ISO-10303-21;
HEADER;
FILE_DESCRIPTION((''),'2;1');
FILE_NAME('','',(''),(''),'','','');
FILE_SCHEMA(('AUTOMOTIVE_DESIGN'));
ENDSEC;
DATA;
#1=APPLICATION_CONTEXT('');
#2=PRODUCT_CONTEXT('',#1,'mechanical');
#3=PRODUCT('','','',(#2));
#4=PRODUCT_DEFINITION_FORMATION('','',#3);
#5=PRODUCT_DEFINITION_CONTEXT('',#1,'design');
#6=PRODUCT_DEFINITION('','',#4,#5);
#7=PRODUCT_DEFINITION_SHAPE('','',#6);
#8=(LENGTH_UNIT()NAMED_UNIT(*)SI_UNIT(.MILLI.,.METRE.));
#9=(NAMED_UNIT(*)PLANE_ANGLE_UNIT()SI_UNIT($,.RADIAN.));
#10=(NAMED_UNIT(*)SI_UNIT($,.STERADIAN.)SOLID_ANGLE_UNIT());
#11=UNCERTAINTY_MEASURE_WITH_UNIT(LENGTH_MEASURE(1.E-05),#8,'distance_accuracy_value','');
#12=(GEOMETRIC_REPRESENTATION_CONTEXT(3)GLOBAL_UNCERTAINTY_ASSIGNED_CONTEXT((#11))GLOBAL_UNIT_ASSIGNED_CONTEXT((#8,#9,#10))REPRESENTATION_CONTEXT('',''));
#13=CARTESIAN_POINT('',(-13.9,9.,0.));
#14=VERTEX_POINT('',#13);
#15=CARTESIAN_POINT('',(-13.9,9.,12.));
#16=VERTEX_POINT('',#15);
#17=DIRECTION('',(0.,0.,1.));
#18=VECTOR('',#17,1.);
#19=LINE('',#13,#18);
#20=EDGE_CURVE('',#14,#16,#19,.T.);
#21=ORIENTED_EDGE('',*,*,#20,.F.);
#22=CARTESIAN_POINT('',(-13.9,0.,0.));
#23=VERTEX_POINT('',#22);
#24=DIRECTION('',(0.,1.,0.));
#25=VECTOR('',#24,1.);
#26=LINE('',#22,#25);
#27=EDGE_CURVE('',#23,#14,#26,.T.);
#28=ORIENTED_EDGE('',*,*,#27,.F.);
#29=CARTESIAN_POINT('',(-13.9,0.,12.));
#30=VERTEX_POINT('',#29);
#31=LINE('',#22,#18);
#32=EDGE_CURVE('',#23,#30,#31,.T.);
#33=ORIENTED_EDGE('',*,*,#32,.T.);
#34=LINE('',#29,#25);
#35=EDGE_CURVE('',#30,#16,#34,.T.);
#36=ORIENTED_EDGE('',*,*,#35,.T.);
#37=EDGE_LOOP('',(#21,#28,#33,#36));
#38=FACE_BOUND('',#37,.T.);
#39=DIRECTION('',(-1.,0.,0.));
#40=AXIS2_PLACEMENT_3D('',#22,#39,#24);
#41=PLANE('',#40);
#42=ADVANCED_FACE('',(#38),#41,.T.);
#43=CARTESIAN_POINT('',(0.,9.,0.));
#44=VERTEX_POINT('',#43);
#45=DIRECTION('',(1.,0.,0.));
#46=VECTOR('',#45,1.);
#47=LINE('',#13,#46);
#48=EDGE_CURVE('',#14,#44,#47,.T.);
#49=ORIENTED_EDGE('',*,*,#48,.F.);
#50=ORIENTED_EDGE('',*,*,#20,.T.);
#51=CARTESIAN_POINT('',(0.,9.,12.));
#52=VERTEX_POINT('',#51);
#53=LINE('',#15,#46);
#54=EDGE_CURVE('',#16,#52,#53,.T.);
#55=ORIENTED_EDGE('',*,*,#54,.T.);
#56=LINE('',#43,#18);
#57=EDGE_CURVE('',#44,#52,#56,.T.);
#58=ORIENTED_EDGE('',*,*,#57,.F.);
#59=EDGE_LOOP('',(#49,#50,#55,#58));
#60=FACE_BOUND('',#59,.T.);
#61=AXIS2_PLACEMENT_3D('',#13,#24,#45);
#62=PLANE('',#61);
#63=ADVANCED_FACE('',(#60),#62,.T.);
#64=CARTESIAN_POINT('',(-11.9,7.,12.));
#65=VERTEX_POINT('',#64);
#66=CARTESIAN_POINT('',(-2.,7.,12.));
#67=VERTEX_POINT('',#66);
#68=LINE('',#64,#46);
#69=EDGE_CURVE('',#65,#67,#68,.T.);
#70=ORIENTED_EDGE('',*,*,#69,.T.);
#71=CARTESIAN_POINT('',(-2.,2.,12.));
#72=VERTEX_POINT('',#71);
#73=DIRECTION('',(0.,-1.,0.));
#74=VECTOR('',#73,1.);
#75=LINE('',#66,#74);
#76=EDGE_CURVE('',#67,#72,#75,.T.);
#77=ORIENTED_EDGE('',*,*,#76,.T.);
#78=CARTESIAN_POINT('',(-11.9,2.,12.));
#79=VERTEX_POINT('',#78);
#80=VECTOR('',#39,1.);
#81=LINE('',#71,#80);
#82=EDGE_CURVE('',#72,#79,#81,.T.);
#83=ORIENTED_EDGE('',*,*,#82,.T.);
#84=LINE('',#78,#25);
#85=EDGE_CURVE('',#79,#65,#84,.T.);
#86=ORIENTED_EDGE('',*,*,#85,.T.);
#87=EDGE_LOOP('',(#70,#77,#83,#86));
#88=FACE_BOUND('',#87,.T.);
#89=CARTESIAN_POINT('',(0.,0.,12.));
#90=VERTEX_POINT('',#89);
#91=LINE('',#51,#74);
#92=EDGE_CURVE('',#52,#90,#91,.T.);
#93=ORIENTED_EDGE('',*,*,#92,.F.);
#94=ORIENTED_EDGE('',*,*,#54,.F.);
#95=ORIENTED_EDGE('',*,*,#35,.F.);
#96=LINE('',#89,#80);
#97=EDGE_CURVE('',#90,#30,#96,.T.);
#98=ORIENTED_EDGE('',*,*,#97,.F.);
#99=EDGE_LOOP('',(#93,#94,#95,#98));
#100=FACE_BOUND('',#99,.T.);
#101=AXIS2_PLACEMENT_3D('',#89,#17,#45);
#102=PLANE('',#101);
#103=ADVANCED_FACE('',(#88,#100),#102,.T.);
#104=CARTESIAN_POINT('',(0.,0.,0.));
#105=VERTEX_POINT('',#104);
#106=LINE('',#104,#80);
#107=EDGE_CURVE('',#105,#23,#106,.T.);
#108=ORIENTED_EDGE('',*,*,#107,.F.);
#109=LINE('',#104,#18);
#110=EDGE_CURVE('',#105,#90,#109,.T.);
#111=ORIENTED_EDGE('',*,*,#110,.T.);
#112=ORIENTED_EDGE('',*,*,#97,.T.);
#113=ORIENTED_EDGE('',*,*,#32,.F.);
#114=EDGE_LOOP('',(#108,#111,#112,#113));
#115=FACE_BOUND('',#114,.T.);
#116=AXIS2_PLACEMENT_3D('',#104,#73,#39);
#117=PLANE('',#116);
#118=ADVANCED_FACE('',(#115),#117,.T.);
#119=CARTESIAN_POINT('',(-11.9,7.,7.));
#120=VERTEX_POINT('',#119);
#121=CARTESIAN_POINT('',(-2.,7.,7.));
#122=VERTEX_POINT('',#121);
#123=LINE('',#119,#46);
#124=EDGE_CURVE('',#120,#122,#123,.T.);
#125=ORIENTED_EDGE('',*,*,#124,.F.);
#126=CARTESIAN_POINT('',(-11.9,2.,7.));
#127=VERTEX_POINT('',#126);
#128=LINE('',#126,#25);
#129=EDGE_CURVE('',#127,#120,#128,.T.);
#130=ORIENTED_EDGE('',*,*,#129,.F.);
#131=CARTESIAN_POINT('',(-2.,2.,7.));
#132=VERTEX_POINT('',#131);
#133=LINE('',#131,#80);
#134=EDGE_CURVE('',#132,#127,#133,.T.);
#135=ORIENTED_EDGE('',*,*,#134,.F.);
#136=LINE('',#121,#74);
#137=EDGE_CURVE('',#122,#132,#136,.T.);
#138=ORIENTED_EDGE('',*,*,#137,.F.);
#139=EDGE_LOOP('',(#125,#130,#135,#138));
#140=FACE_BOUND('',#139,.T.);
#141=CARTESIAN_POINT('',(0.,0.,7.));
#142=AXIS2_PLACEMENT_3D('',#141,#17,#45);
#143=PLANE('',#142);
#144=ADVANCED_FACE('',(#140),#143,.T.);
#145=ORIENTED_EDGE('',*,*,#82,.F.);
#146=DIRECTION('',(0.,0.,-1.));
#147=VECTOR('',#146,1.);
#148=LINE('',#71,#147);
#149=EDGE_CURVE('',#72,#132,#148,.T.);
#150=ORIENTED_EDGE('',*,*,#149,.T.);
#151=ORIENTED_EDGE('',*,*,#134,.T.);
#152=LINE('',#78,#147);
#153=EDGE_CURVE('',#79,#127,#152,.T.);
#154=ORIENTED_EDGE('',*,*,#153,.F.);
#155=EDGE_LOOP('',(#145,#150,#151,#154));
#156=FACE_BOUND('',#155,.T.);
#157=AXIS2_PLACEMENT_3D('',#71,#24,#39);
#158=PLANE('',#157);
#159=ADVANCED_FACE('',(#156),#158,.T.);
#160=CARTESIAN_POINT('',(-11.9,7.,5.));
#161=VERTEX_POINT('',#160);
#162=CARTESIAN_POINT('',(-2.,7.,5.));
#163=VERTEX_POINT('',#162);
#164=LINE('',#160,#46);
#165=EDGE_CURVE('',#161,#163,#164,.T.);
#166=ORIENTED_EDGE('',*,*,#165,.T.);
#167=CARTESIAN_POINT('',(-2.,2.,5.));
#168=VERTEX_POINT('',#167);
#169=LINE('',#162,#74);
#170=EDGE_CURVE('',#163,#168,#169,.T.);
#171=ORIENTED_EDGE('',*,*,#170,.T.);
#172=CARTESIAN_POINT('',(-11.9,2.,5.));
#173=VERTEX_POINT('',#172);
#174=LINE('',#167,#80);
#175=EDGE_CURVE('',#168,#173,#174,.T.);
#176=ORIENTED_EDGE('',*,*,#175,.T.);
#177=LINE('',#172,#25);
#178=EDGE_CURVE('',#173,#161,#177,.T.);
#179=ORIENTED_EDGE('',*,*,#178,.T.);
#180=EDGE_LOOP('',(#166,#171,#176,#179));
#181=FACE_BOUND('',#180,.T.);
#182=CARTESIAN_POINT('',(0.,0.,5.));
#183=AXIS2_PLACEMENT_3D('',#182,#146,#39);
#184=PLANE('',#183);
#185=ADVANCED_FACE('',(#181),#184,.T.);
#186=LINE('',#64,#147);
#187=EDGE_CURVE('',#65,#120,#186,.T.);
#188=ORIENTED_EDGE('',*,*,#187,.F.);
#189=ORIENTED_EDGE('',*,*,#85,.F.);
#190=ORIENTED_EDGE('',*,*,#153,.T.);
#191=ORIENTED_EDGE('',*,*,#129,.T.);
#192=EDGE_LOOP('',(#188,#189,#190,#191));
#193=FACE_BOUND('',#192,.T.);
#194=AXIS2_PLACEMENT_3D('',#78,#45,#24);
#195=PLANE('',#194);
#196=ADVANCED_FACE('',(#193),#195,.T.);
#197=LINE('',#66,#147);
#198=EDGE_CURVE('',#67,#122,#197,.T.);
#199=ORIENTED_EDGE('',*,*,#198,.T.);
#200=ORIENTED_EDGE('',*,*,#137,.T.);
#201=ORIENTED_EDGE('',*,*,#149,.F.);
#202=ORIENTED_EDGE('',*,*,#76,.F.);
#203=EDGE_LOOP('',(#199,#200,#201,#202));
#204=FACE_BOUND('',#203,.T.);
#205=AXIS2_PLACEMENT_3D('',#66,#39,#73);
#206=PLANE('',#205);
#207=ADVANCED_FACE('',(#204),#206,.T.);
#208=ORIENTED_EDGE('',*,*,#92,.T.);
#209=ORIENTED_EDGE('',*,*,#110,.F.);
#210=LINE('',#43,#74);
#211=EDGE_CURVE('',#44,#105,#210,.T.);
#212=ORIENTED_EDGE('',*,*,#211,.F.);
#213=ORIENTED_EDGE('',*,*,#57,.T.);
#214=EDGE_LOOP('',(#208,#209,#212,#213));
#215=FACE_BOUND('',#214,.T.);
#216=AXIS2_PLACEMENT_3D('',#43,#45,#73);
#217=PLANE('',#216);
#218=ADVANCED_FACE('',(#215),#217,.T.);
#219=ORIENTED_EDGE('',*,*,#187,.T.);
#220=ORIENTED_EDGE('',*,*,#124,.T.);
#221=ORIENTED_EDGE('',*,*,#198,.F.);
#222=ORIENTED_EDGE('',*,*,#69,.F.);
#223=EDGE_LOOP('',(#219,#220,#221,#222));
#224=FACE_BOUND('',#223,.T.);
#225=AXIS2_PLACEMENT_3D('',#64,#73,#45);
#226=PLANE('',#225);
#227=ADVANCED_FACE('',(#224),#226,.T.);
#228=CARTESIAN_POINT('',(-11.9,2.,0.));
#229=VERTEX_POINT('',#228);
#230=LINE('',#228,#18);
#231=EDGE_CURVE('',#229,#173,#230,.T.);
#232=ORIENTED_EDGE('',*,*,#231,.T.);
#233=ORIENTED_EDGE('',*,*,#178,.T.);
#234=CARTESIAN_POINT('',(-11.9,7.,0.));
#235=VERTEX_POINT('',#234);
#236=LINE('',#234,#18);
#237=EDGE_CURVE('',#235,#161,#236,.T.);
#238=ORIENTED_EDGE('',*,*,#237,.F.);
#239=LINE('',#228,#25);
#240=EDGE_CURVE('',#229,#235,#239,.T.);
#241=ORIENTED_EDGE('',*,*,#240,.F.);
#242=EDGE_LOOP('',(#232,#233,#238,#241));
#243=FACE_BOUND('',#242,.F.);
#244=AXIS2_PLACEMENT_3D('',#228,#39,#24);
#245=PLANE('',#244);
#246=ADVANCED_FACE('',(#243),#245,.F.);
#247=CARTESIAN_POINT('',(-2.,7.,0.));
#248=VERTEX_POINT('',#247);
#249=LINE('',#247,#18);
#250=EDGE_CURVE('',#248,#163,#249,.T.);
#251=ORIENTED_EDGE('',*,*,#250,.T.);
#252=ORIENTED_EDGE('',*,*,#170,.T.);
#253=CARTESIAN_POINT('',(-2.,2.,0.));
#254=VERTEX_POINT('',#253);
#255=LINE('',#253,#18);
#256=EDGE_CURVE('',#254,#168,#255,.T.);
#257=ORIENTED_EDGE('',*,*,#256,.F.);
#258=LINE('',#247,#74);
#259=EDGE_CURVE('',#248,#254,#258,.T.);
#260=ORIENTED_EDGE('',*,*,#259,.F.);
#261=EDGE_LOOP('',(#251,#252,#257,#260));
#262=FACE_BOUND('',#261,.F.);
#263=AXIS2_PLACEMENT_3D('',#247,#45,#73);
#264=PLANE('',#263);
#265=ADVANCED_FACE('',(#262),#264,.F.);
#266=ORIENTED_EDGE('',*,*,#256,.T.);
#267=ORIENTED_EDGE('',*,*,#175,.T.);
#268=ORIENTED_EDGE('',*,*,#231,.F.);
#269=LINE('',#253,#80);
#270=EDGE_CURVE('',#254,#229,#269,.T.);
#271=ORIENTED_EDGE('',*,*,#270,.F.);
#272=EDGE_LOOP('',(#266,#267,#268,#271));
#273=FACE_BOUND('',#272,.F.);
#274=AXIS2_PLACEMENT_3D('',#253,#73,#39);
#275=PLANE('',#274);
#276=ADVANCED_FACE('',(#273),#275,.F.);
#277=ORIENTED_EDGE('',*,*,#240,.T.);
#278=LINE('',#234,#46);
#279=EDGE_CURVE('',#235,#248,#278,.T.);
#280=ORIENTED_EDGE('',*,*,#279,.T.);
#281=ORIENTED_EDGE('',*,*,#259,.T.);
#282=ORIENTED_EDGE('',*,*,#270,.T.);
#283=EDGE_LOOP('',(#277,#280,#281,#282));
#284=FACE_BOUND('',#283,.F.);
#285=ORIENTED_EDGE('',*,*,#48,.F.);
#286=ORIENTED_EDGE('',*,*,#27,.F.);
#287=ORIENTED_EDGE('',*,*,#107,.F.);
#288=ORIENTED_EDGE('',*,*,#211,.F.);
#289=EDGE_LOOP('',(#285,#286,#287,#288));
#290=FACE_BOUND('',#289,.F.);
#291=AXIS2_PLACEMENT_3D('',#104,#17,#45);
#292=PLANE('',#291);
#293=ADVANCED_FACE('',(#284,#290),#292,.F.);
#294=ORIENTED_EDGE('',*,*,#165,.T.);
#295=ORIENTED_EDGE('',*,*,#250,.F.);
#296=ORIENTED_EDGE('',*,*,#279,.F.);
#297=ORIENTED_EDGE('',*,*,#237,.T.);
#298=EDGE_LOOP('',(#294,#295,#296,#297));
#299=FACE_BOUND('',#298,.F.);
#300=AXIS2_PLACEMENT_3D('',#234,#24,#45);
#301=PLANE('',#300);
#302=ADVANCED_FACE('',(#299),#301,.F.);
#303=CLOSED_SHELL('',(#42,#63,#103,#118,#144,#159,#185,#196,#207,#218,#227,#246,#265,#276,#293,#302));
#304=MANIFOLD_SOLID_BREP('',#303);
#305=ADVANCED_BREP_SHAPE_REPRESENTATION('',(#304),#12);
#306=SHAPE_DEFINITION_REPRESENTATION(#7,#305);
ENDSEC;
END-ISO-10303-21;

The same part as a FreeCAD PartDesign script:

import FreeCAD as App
import Part
import Sketcher
from FreeCAD import Vector


def add_polygon(sketch, points):
    """Adds a closed chain of lines whose ends are joined by coincident constraints."""
    first, n = sketch.GeometryCount, len(points)
    for a, b in zip(points, points[1:] + points[:1]):
        sketch.addGeometry(Part.LineSegment(App.Vector(*a, 0), App.Vector(*b, 0)), False)
    for i in range(n):
        sketch.addConstraint(Sketcher.Constraint("Coincident", first + i, 2, first + (i + 1) % n, 1))

doc = App.newDocument("Part")
params = doc.addObject("Spreadsheet::Sheet", "Params")
for row, (alias, value) in enumerate([
    ("sketch1_height", "9 mm"),
    ("sketch1_width", "13.9 mm"),
    ("pad1_length", "12 mm"),
    ("sketch2_height", "5 mm"),
    ("sketch2_width", "9.9 mm"),
    ("pocket1_length", "5 mm"),
    ("sketch3_height", "5 mm"),
    ("sketch3_width", "9.9 mm"),
    ("pocket2_length", "5 mm"),
], start=1):
    params.set(f"A{row}", alias)
    params.set(f"B{row}", "=" + value)
    params.setAlias(f"B{row}", alias)

body = doc.addObject("PartDesign::Body", "Body")

# Sketch on XY plane
sketch1 = body.newObject("Sketcher::SketchObject", "Sketch")
sketch1.AttachmentSupport = (doc.getObject("XY_Plane"), [""])
sketch1.MapMode = "FlatFace"
add_polygon(sketch1, [(-14, 0), (0, 0), (0, 9), (-14, 9)])  # lines 0-3
sketch1.addConstraint(Sketcher.Constraint("Horizontal", 0))
sketch1.addConstraint(Sketcher.Constraint("Vertical", 1))
sketch1.addConstraint(Sketcher.Constraint("Horizontal", 2))
sketch1.addConstraint(Sketcher.Constraint("Vertical", 3))
sketch1.addConstraint(Sketcher.Constraint("Coincident", 0, 2, -1, 1))
sketch1.addConstraint(Sketcher.Constraint("DistanceY", 1, 1, 1, 2, 9.0))
sketch1.addConstraint(Sketcher.Constraint("DistanceX", 0, 1, 0, 2, 13.9))
sketch1.setExpression("Constraints[9]", "Params.sketch1_height")
sketch1.setExpression("Constraints[10]", "Params.sketch1_width")
pad1 = body.newObject("PartDesign::Pad", "Pad")
pad1.Profile = sketch1
pad1.setExpression("Length", "Params.pad1_length")

# Sketch on XY plane
sketch2 = body.newObject("Sketcher::SketchObject", "Sketch001")
sketch2.AttachmentSupport = (doc.getObject("XY_Plane"), [""])
sketch2.MapMode = "FlatFace"
sketch2.AttachmentOffset = App.Placement(Vector(0, 0, 12), App.Rotation())
add_polygon(sketch2, [(-12, 2), (-2, 2), (-2, 7), (-12, 7)])  # lines 0-3
sketch2.addConstraint(Sketcher.Constraint("Horizontal", 0))
sketch2.addConstraint(Sketcher.Constraint("Vertical", 1))
sketch2.addConstraint(Sketcher.Constraint("Horizontal", 2))
sketch2.addConstraint(Sketcher.Constraint("Vertical", 3))
sketch2.addConstraint(Sketcher.Constraint("DistanceY", 1, 1, 1, 2, 5.0))
sketch2.addConstraint(Sketcher.Constraint("DistanceX", 0, 1, 0, 2, 9.9))
sketch2.addConstraint(Sketcher.Constraint("DistanceX", 0, 2, -1, 1, 2.0))
sketch2.addConstraint(Sketcher.Constraint("DistanceY", -1, 1, 0, 2, 2.0))
sketch2.setExpression("Constraints[8]", "Params.sketch2_height")
sketch2.setExpression("Constraints[9]", "Params.sketch2_width")
pocket1 = body.newObject("PartDesign::Pocket", "Pocket")
pocket1.Profile = sketch2
pocket1.setExpression("Length", "Params.pocket1_length")

# Sketch on XY plane
sketch3 = body.newObject("Sketcher::SketchObject", "Sketch002")
sketch3.AttachmentSupport = (doc.getObject("XY_Plane"), [""])
sketch3.MapMode = "FlatFace"
add_polygon(sketch3, [(-2, 7), (-2, 2), (-12, 2), (-12, 7)])  # lines 0-3
sketch3.addConstraint(Sketcher.Constraint("Vertical", 0))
sketch3.addConstraint(Sketcher.Constraint("Horizontal", 1))
sketch3.addConstraint(Sketcher.Constraint("Vertical", 2))
sketch3.addConstraint(Sketcher.Constraint("Horizontal", 3))
sketch3.addConstraint(Sketcher.Constraint("DistanceY", 0, 2, 0, 1, 5.0))
sketch3.addConstraint(Sketcher.Constraint("DistanceX", 1, 2, 1, 1, 9.9))
sketch3.addConstraint(Sketcher.Constraint("DistanceX", 0, 2, -1, 1, 2.0))
sketch3.addConstraint(Sketcher.Constraint("DistanceY", -1, 1, 0, 2, 2.0))
sketch3.setExpression("Constraints[8]", "Params.sketch3_height")
sketch3.setExpression("Constraints[9]", "Params.sketch3_width")
pocket2 = body.newObject("PartDesign::Pocket", "Pocket001")
pocket2.Profile = sketch3
pocket2.setExpression("Length", "Params.pocket2_length")
pocket2.Reversed = True

doc.recompute()
